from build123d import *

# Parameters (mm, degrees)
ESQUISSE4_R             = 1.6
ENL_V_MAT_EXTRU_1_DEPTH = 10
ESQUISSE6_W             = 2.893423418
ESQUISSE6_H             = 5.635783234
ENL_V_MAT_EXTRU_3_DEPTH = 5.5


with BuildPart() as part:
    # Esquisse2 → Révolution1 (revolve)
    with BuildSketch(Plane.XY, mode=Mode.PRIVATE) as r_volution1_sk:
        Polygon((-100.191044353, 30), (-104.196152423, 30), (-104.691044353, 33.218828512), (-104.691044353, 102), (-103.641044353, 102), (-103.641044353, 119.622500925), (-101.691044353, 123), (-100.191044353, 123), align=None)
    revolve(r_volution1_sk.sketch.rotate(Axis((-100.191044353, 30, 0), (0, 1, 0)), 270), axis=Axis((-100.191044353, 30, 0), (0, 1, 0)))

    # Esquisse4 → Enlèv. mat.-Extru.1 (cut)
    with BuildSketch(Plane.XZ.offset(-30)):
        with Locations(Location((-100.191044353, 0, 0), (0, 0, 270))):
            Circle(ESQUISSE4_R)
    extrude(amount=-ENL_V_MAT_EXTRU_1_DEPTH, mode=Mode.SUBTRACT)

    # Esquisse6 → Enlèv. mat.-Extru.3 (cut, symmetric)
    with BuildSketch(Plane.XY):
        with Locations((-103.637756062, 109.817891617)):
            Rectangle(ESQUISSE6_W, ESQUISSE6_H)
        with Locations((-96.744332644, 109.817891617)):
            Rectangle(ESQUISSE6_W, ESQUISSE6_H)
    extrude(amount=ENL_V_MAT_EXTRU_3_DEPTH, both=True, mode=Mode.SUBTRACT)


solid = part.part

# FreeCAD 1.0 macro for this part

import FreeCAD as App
import Part
import Sketcher

V = App.Vector
Q = App.Units.Quantity


def add_polygon(sketch, points):
    """Adds a closed chain of lines whose ends are joined by coincident constraints."""
    first, n = sketch.GeometryCount, len(points)
    for a, b in zip(points, points[1:] + points[:1]):
        sketch.addGeometry(Part.LineSegment(App.Vector(*a, 0), App.Vector(*b, 0)), False)
    for i in range(n):
        sketch.addConstraint(Sketcher.Constraint("Coincident", first + i, 2, first + (i + 1) % n, 1))

doc = App.newDocument("Part")
body = doc.addObject("PartDesign::Body", "Body")

# Sketch on XY plane
sketch1 = body.newObject("Sketcher::SketchObject", "Sketch")
sketch1.AttachmentSupport = (doc.getObject("XY_Plane"), [""])
sketch1.MapMode = "FlatFace"
add_polygon(sketch1, [(-104.2, 30), (-100.2, 30), (-100.2, 123), (-101.7, 123), (-103.6, 119.6), (-103.6, 102), (-104.7, 102), (-104.7, 33.2)])  # lines 0-7
sketch1.addGeometry(Part.LineSegment(V(-100.2, 30, 0), V(-100.2, 123, 0)), True)  # axis
sketch1.addConstraint([
    Sketcher.Constraint("Horizontal", 0),
    Sketcher.Constraint("Vertical", 1),
    Sketcher.Constraint("Horizontal", 2),
    Sketcher.Constraint("Vertical", 4),
    Sketcher.Constraint("Horizontal", 5),
    Sketcher.Constraint("Vertical", 6),
    Sketcher.Constraint("Vertical", 8),
    Sketcher.Constraint("Coincident", 8, 1, 0, 2),
    Sketcher.Constraint("Horizontal", 2, 2, 8, 2),
    Sketcher.Constraint("DistanceY", 1, 1, 1, 2, 93.0),
    Sketcher.Constraint("Angle", 3, Q("-120 deg")),
    Sketcher.Constraint("DistanceX", 2, 2, 2, 1, 1.5),
    Sketcher.Constraint("DistanceY", -1, 1, 0, 2, 30.0),
    Sketcher.Constraint("DistanceY", -1, 1, 4, 2, 102.0),
    Sketcher.Constraint("DistanceX", 5, 2, 2, 2, 3.0),
    Sketcher.Constraint("Distance", 3, 3.9),
    Sketcher.Constraint("DistanceX", 0, 1, 0, 2, 4.005108),
    Sketcher.Constraint("DistanceY", 6, 2, 6, 1, 68.781171),
    Sketcher.Constraint("DistanceX", 0, 2, -1, 1, 100.191044),
])
revolution = body.newObject("PartDesign::Revolution", "Revolution")
revolution.Profile = sketch1
revolution.ReferenceAxis = (sketch1, ["Axis0"])
revolution.Angle = 360

# Sketch on XZ plane
sketch2 = body.newObject("Sketcher::SketchObject", "Sketch001")
sketch2.AttachmentSupport = (doc.getObject("XZ_Plane"), [""])
sketch2.MapMode = "FlatFace"
sketch2.AttachmentOffset = App.Placement(V(0, 0, -30), App.Rotation())
sketch2.addGeometry(Part.Circle(V(-100.2, 0, 0), V(0, 0, 1), 1.6), False)
sketch2.addConstraint([
    Sketcher.Constraint("PointOnObject", 0, 3, -1),
    Sketcher.Constraint("Diameter", 0, 3.2),
    Sketcher.Constraint("DistanceX", 0, 3, -1, 1, 100.191044),
])
pocket1 = body.newObject("PartDesign::Pocket", "Pocket")
pocket1.Profile = sketch2
pocket1.Length = 10

# Sketch on XY plane
sketch3 = body.newObject("Sketcher::SketchObject", "Sketch002")
sketch3.AttachmentSupport = (doc.getObject("XY_Plane"), [""])
sketch3.MapMode = "FlatFace"
add_polygon(sketch3, [(-105.1, 112.6), (-105.1, 107), (-102.2, 107), (-102.2, 112.6)])  # lines 0-3
add_polygon(sketch3, [(-98.2, 112.6), (-98.2, 107), (-95.3, 107), (-95.3, 112.6)])  # lines 4-7
sketch3.addConstraint([
    Sketcher.Constraint("Vertical", 0),
    Sketcher.Constraint("Horizontal", 1),
    Sketcher.Constraint("Vertical", 2),
    Sketcher.Constraint("Horizontal", 3),
    Sketcher.Constraint("Vertical", 4),
    Sketcher.Constraint("Horizontal", 5),
    Sketcher.Constraint("Vertical", 6),
    Sketcher.Constraint("Horizontal", 7),
    Sketcher.Constraint("Horizontal", 1, 2, 4, 2),
    Sketcher.Constraint("Horizontal", 3, 2, 6, 2),
    Sketcher.Constraint("Equal", 3, 5),
    Sketcher.Constraint("DistanceY", -1, 1, 0, 2, 107.0),
    Sketcher.Constraint("DistanceX", 1, 2, 4, 2, 4.0),
    Sketcher.Constraint("DistanceX", 1, 1, 1, 2, 2.893423),
    Sketcher.Constraint("DistanceY", 0, 2, 0, 1, 5.635783),
    Sketcher.Constraint("DistanceX", 5, 2, -1, 1, 95.297621),
])
pocket2 = body.newObject("PartDesign::Pocket", "Pocket001")
pocket2.Profile = sketch3
pocket2.Length = 11
pocket2.Midplane = True

doc.recompute()
